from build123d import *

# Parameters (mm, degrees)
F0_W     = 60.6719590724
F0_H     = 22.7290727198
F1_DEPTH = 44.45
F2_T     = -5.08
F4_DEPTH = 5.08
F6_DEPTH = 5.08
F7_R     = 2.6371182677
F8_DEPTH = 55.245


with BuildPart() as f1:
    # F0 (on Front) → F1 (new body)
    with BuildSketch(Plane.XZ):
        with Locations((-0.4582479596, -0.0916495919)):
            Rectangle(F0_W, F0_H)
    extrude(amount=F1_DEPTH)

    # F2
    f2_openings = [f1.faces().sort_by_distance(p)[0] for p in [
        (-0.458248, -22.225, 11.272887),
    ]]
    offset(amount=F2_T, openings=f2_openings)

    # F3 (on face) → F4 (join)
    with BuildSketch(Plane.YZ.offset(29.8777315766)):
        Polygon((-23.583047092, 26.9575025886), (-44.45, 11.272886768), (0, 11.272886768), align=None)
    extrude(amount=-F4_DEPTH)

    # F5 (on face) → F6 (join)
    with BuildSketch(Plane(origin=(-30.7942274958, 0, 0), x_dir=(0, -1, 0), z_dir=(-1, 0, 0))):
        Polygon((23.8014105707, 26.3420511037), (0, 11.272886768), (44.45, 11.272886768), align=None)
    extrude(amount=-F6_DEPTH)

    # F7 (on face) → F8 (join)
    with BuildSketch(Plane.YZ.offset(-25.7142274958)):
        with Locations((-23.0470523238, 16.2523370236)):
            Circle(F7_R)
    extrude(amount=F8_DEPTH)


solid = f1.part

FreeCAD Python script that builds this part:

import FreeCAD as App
import Part
import Sketcher
Q = App.Units.Quantity


def faces_at(feature, points):
    """Names of the faces that lie closest to the given points."""
    faces = feature.Shape.Faces
    near = lambda p: min(range(len(faces)), key=lambda i: faces[i].distToShape(Part.Vertex(*p))[0])
    return sorted({f"Face{near(p) + 1}" for p in points})


def add_polygon(sketch, points):
    """Adds a closed chain of lines whose ends are joined by coincident constraints."""
    first, n = sketch.GeometryCount, len(points)
    for a, b in zip(points, points[1:] + points[:1]):
        sketch.addGeometry(Part.LineSegment(App.Vector(*a, 0), App.Vector(*b, 0)), False)
    for i in range(n):
        sketch.addConstraint(Sketcher.Constraint("Coincident", first + i, 2, first + (i + 1) % n, 1))

doc = App.newDocument("Part")
body = doc.addObject("PartDesign::Body", "Body")

sketch1 = doc.addObject("Sketcher::SketchObject", "Sketch")
body.addObject(sketch1)
sketch1.AttachmentSupport = (doc.XZ_Plane, [""])
sketch1.MapMode = "FlatFace"
add_polygon(sketch1, [(-31, 11), (-31, -11), (30, -11), (30, 11)])
sketch1.addConstraint([
    Sketcher.Constraint("Vertical", 0),
    Sketcher.Constraint("Horizontal", 1),
    Sketcher.Constraint("Vertical", 2),
    Sketcher.Constraint("Horizontal", 3),
    Sketcher.Constraint("DistanceX", 1, 1, 1, 2, 60.671959),
    Sketcher.Constraint("DistanceY", 0, 2, 0, 1, 22.729073),
    Sketcher.Constraint("DistanceX", -1, 1, 1, 2, 29.877732),
    Sketcher.Constraint("DistanceY", 0, 2, -1, 1, 11.456186),
])
pad1 = doc.addObject("PartDesign::Pad", "Pad")
body.addObject(pad1)
pad1.Profile = sketch1
pad1.Length = Q("1.75 in")
doc.recompute()

thickness = doc.addObject("PartDesign::Thickness", "Thickness")
body.addObject(thickness)
thickness.Base = (pad1, faces_at(pad1, [(-0.458, -22.225, 11.273)]))
thickness.Value = Q("0.2 in")
thickness.Reversed = True
thickness.Join = "Arc"

sketch2 = doc.addObject("Sketcher::SketchObject", "Sketch001")
body.addObject(sketch2)
sketch2.AttachmentSupport = (doc.YZ_Plane, [""])
sketch2.MapMode = "FlatFace"
sketch2.AttachmentOffset = App.Placement(App.Vector(0, 0, 29.877732), App.Rotation())
add_polygon(sketch2, [(-24, 27), (-44, 11), (0, 11)])
sketch2.addConstraint([
    Sketcher.Constraint("Horizontal", 1),
    Sketcher.Constraint("PointOnObject", 1, 2, -2),
    Sketcher.Constraint("DistanceX", 1, 1, 1, 2, Q("1.75 in")),
    Sketcher.Constraint("Distance", 0, 26.104346),
    Sketcher.Constraint("Distance", 2, 28.322558),
    Sketcher.Constraint("DistanceY", -1, 1, 0, 2, 11.272887),
])
pad2 = doc.addObject("PartDesign::Pad", "Pad001")
body.addObject(pad2)
pad2.Profile = sketch2
pad2.Length = Q("0.2 in")
pad2.Reversed = True

sketch3 = doc.addObject("Sketcher::SketchObject", "Sketch002")
body.addObject(sketch3)
sketch3.AttachmentSupport = (doc.YZ_Plane, [""])
sketch3.MapMode = "FlatFace"
sketch3.AttachmentOffset = App.Placement(App.Vector(0, 0, -30.794227), App.Rotation())
add_polygon(sketch3, [(-24, 26), (0, 11), (-44, 11)])
sketch3.addConstraint([
    Sketcher.Constraint("Horizontal", 1),
    Sketcher.Constraint("PointOnObject", 0, 2, -2),
    Sketcher.Constraint("DistanceX", 1, 2, 1, 1, Q("1.75 in")),
    Sketcher.Constraint("Distance", 2, 25.56255),
    Sketcher.Constraint("DistanceX", 2, 2, -1, 1, 23.801411),
    Sketcher.Constraint("DistanceY", -1, 1, 2, 2, 26.342051),
])
pad3 = doc.addObject("PartDesign::Pad", "Pad002")
body.addObject(pad3)
pad3.Profile = sketch3
pad3.Length = Q("0.2 in")

sketch4 = doc.addObject("Sketcher::SketchObject", "Sketch003")
body.addObject(sketch4)
sketch4.AttachmentSupport = (doc.YZ_Plane, [""])
sketch4.MapMode = "FlatFace"
sketch4.AttachmentOffset = App.Placement(App.Vector(0, 0, -25.714227), App.Rotation())
sketch4.addGeometry(Part.Circle(App.Vector(-23, 16.3, 0), App.Vector(0, 0, 1), 2.6), False)
sketch4.addConstraint([
    Sketcher.Constraint("Diameter", 0, 5.274237),
    Sketcher.Constraint("DistanceX", 0, 3, -1, 1, 23.047052),
    Sketcher.Constraint("DistanceY", -1, 1, 0, 3, 16.252337),
])
pad4 = doc.addObject("PartDesign::Pad", "Pad003")
body.addObject(pad4)
pad4.Profile = sketch4
pad4.Length = Q("2.175 in")

doc.recompute()
